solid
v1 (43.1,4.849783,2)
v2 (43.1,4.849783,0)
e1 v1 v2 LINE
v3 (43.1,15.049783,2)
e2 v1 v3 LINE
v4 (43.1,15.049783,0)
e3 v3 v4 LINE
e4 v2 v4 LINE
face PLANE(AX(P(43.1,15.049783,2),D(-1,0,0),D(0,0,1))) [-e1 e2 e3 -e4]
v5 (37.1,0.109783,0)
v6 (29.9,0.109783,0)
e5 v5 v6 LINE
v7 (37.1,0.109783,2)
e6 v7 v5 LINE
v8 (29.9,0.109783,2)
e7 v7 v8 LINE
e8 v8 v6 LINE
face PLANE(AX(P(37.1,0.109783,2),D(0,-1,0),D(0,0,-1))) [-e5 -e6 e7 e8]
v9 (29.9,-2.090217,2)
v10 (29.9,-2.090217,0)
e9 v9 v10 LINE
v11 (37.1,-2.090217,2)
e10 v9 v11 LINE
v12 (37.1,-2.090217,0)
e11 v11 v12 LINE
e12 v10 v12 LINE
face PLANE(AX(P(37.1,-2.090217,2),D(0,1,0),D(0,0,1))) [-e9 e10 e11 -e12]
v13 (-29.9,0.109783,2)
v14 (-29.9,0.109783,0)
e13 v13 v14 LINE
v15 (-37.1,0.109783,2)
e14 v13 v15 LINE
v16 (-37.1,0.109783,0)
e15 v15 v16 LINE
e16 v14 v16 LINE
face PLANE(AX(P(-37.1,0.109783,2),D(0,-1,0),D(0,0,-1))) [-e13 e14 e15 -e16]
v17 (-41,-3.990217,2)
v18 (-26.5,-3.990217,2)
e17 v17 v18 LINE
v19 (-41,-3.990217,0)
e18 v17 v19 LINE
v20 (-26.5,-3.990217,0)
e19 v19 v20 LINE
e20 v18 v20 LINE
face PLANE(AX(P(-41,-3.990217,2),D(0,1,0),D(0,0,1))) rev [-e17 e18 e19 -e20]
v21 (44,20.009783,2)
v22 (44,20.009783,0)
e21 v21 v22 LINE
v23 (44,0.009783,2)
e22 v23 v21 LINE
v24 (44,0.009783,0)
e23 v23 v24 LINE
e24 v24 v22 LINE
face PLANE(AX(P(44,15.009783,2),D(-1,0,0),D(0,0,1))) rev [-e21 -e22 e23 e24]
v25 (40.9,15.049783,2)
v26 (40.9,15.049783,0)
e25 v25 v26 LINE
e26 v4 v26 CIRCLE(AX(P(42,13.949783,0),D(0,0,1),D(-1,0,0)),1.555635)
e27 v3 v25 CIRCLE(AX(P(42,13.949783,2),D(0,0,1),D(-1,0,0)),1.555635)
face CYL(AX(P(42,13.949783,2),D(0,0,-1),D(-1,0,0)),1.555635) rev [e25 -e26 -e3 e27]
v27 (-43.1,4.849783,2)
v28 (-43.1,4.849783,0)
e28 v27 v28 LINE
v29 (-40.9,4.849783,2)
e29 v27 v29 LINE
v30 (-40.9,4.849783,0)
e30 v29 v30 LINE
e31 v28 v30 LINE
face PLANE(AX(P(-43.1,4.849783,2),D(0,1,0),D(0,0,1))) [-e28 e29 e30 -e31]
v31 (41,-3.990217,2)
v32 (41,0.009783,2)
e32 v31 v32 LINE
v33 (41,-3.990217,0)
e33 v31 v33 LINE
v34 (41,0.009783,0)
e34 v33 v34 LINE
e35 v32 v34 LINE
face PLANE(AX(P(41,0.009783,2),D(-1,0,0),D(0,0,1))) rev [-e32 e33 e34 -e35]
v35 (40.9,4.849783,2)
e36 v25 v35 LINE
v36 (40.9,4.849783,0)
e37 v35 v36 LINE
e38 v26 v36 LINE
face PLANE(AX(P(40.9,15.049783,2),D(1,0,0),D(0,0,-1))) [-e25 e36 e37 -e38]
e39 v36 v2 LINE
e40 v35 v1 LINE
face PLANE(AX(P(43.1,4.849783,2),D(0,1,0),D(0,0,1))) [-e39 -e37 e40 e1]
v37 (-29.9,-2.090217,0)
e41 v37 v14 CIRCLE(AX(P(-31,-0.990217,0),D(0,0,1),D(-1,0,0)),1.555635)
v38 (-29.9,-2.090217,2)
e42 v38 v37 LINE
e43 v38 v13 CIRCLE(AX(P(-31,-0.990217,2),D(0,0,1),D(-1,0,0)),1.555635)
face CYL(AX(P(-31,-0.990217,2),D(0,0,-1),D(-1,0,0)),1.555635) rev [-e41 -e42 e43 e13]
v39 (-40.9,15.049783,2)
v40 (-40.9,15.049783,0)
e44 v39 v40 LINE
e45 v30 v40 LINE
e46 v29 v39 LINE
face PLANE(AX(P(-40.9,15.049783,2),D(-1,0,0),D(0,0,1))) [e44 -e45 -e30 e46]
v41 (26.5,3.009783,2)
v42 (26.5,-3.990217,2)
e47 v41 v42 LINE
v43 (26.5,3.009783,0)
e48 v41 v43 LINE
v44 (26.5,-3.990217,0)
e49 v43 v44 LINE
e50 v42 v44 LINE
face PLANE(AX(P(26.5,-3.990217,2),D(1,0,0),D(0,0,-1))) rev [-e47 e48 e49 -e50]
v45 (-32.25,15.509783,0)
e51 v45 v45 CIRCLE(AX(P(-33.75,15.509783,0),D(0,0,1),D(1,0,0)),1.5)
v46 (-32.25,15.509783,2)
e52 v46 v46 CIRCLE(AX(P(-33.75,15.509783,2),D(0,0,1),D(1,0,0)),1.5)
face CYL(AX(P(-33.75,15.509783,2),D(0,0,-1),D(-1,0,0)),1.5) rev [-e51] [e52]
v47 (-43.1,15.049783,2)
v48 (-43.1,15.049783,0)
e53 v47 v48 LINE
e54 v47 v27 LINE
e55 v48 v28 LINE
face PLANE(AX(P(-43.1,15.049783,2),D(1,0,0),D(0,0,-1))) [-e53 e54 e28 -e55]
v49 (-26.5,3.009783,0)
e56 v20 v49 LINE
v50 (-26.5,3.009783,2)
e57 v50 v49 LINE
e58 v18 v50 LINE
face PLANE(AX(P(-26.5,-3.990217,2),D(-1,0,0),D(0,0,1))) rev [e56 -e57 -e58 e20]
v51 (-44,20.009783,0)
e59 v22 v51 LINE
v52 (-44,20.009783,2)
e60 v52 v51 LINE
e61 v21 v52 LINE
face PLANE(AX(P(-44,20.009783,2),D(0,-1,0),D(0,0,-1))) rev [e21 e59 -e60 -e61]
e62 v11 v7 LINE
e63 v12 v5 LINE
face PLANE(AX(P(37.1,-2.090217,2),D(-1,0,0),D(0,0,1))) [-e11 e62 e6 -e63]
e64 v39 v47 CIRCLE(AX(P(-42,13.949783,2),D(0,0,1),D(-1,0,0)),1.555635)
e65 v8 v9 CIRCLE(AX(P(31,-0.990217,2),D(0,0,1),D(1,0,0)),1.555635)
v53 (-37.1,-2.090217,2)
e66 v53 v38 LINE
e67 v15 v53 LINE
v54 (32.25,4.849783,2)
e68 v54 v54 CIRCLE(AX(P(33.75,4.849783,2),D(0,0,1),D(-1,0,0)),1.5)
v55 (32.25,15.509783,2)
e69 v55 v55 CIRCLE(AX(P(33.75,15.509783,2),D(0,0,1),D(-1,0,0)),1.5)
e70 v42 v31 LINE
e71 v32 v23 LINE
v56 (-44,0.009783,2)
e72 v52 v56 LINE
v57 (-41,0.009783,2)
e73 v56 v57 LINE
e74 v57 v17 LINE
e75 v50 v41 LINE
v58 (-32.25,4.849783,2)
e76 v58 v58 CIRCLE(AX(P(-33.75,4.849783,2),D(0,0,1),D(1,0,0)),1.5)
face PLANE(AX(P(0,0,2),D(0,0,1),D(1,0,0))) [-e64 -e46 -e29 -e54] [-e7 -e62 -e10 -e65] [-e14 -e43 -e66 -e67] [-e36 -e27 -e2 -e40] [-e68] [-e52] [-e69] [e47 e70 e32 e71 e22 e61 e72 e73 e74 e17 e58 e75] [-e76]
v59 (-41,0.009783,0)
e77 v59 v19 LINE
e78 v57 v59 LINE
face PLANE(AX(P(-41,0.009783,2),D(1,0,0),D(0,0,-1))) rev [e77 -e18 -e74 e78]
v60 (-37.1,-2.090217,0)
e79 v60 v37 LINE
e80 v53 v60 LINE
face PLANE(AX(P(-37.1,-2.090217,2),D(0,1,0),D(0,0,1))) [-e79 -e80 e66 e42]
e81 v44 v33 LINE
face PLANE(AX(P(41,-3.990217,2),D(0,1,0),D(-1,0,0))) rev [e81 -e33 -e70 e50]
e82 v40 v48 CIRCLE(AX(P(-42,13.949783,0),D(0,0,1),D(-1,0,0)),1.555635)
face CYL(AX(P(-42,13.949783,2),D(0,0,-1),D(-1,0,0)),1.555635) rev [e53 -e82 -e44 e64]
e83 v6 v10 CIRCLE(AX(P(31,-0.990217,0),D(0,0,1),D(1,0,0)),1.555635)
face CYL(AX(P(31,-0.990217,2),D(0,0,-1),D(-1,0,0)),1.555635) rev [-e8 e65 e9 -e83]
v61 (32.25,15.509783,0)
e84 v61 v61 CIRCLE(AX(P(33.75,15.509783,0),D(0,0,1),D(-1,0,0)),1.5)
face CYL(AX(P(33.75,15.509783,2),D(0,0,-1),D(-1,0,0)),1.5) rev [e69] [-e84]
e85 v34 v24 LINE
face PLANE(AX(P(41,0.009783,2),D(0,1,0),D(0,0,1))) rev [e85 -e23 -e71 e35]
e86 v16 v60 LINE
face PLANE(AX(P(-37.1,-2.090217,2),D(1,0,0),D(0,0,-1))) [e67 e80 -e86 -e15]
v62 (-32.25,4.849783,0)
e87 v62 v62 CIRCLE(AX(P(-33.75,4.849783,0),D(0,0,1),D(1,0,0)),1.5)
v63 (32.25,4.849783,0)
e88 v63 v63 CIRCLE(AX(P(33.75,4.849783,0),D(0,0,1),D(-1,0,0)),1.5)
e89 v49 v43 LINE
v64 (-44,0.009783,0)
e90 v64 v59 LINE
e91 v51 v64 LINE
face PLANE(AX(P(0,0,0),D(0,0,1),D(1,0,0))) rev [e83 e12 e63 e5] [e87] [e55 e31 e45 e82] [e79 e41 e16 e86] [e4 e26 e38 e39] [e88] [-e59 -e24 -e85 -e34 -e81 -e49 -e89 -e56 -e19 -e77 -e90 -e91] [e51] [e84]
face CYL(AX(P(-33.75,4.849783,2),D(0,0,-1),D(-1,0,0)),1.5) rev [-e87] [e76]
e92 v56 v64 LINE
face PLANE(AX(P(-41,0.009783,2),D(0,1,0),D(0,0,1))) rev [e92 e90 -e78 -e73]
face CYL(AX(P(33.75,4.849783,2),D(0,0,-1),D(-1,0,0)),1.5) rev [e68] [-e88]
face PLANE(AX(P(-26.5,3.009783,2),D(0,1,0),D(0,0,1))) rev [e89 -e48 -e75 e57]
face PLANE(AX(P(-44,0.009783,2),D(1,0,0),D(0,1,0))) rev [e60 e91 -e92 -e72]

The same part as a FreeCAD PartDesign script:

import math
import FreeCAD as App
import Part
import Sketcher

V = App.Vector
Q = App.Units.Quantity


def add_polygon(sketch, points):
    """Adds a closed chain of lines whose ends are joined by coincident constraints."""
    first, n = sketch.GeometryCount, len(points)
    for a, b in zip(points, points[1:] + points[:1]):
        sketch.addGeometry(Part.LineSegment(App.Vector(*a, 0), App.Vector(*b, 0)), False)
    for i in range(n):
        sketch.addConstraint(Sketcher.Constraint("Coincident", first + i, 2, first + (i + 1) % n, 1))

doc = App.newDocument("Part")
body = doc.addObject("PartDesign::Body", "Body")

# Sketch on XY plane
sketch1 = body.newObject("Sketcher::SketchObject", "Sketch")
sketch1.AttachmentSupport = (doc.getObject("XY_Plane"), [""])
sketch1.MapMode = "FlatFace"
add_polygon(sketch1, [(-44, 20), (-44, 0), (-41, 0), (-41, -4), (-26.5, -4), (-26.5, 3), (26.5, 3), (26.5, -4), (41, -4), (41, 0), (44, 0), (44, 20)])  # lines 0-11
sketch1.addGeometry(Part.LineSegment(V(-37.1, -2.1, 0), V(-37.1, 0.1, 0)), False)  # 12
sketch1.addGeometry(Part.LineSegment(V(-37.1, 0.1, 0), V(-29.9, 0.1, 0)), False)  # 13
sketch1.addGeometry(Part.ArcOfCircle(Part.Circle(V(-31, -1, 0), V(0, 0, 1), 1.6), math.radians(-45), math.radians(45)), False)  # 14
sketch1.addGeometry(Part.LineSegment(V(-29.9, -2.1, 0), V(-37.1, -2.1, 0)), False)  # 15
sketch1.addGeometry(Part.Circle(V(-33.8, 4.8, 0), V(0, 0, 1), 1.5), False)  # 16
sketch1.addGeometry(Part.LineSegment(V(37.1, 0.1, 0), V(37.1, -2.1, 0)), False)  # 17
sketch1.addGeometry(Part.LineSegment(V(37.1, -2.1, 0), V(29.9, -2.1, 0)), False)  # 18
sketch1.addGeometry(Part.ArcOfCircle(Part.Circle(V(31, -1, 0), V(0, 0, 1), 1.6), math.radians(135), math.radians(225)), False)  # 19
sketch1.addGeometry(Part.LineSegment(V(29.9, 0.1, 0), V(37.1, 0.1, 0)), False)  # 20
sketch1.addGeometry(Part.Circle(V(33.8, 4.8, 0), V(0, 0, 1), 1.5), False)  # 21
sketch1.addGeometry(Part.LineSegment(V(-43.1, 4.8, 0), V(-43.1, 15, 0)), False)  # 22
sketch1.addGeometry(Part.ArcOfCircle(Part.Circle(V(-42, 13.9, 0), V(0, 0, 1), 1.6), math.radians(45), math.radians(135)), False)  # 23
sketch1.addGeometry(Part.LineSegment(V(-40.9, 15, 0), V(-40.9, 4.8, 0)), False)  # 24
sketch1.addGeometry(Part.LineSegment(V(-40.9, 4.8, 0), V(-43.1, 4.8, 0)), False)  # 25
sketch1.addGeometry(Part.Circle(V(-33.8, 15.5, 0), V(0, 0, 1), 1.5), False)  # 26
sketch1.addGeometry(Part.LineSegment(V(40.9, 4.8, 0), V(40.9, 15, 0)), False)  # 27
sketch1.addGeometry(Part.ArcOfCircle(Part.Circle(V(42, 13.9, 0), V(0, 0, 1), 1.6), math.radians(45), math.radians(135)), False)  # 28
sketch1.addGeometry(Part.LineSegment(V(43.1, 15, 0), V(43.1, 4.8, 0)), False)  # 29
sketch1.addGeometry(Part.LineSegment(V(43.1, 4.8, 0), V(40.9, 4.8, 0)), False)  # 30
sketch1.addGeometry(Part.Circle(V(33.8, 15.5, 0), V(0, 0, 1), 1.5), False)  # 31
sketch1.addConstraint([
    Sketcher.Constraint("Coincident", 12, 2, 13, 1),
    Sketcher.Constraint("Coincident", 13, 2, 14, 2),
    Sketcher.Constraint("Coincident", 14, 1, 15, 1),
    Sketcher.Constraint("Coincident", 15, 2, 12, 1),
    Sketcher.Constraint("Coincident", 17, 2, 18, 1),
    Sketcher.Constraint("Coincident", 18, 2, 19, 2),
    Sketcher.Constraint("Coincident", 19, 1, 20, 1),
    Sketcher.Constraint("Coincident", 20, 2, 17, 1),
    Sketcher.Constraint("Coincident", 22, 2, 23, 2),
    Sketcher.Constraint("Coincident", 23, 1, 24, 1),
    Sketcher.Constraint("Coincident", 24, 2, 25, 1),
    Sketcher.Constraint("Coincident", 25, 2, 22, 1),
    Sketcher.Constraint("Coincident", 27, 2, 28, 2),
    Sketcher.Constraint("Coincident", 28, 1, 29, 1),
    Sketcher.Constraint("Coincident", 29, 2, 30, 1),
    Sketcher.Constraint("Coincident", 30, 2, 27, 1),
    Sketcher.Constraint("Vertical", 0),
    Sketcher.Constraint("Horizontal", 1),
    Sketcher.Constraint("Vertical", 2),
    Sketcher.Constraint("Horizontal", 3),
    Sketcher.Constraint("Vertical", 4),
    Sketcher.Constraint("Horizontal", 5),
    Sketcher.Constraint("Vertical", 6),
    Sketcher.Constraint("Horizontal", 7),
    Sketcher.Constraint("Vertical", 8),
    Sketcher.Constraint("Horizontal", 9),
    Sketcher.Constraint("Vertical", 10),
    Sketcher.Constraint("Horizontal", 11),
    Sketcher.Constraint("Vertical", 12),
    Sketcher.Constraint("Horizontal", 13),
    Sketcher.Constraint("Horizontal", 15),
    Sketcher.Constraint("Vertical", 17),
    Sketcher.Constraint("Horizontal", 18),
    Sketcher.Constraint("Horizontal", 20),
    Sketcher.Constraint("Vertical", 22),
    Sketcher.Constraint("Vertical", 24),
    Sketcher.Constraint("Horizontal", 25),
    Sketcher.Constraint("Vertical", 27),
    Sketcher.Constraint("Vertical", 29),
    Sketcher.Constraint("Horizontal", 30),
    Sketcher.Constraint("Equal", 14, 19),
    Sketcher.Constraint("Equal", 16, 21),
    Sketcher.Constraint("Equal", 19, 23),
    Sketcher.Constraint("Equal", 21, 26),
    Sketcher.Constraint("Equal", 23, 28),
    Sketcher.Constraint("Equal", 26, 31),
    Sketcher.Constraint("Symmetric", 14, 3, 19, 3, -2),
    Sketcher.Constraint("Symmetric", 16, 3, 21, 3, -2),
    Sketcher.Constraint("Symmetric", 23, 3, 28, 3, -2),
    Sketcher.Constraint("Symmetric", 26, 3, 31, 3, -2),
    Sketcher.Constraint("Symmetric", 3, 2, 6, 2, -2),
    Sketcher.Constraint("Symmetric", 1, 2, 8, 2, -2),
    Sketcher.Constraint("Symmetric", 15, 2, 17, 2, -2),
    Sketcher.Constraint("Symmetric", 25, 2, 29, 2, -2),
    Sketcher.Constraint("Horizontal", 13, 2, 19, 1),
    Sketcher.Constraint("Horizontal", 22, 2, 23, 1),
    Sketcher.Constraint("Horizontal", 21, 3, 24, 2),
    Sketcher.Constraint("Horizontal", 23, 1, 27, 2),
    Sketcher.Constraint("Vertical", 16, 3, 26, 3),
    Sketcher.Constraint("Vertical", 13, 2, 14, 1),
    Sketcher.Constraint("Equal", 1, 9),
    Sketcher.Constraint("Equal", 30, 12),
    Sketcher.Constraint("Diameter", 16, Q("3 mm")),
    Sketcher.Constraint("DistanceX", 1, 1, 1, 2, Q("3 mm")),
    Sketcher.Constraint("DistanceX", 5, 1, 5, 2, Q("53 mm")),
    Sketcher.Constraint("DistanceX", 11, 2, 11, 1, Q("88 mm")),
    Sketcher.Constraint("DistanceY", 0, 2, 0, 1, Q("20 mm")),
    Sketcher.Constraint("DistanceY", 2, 2, 2, 1, Q("4 mm")),
    Sketcher.Constraint("DistanceY", 4, 1, 4, 2, Q("7 mm")),
    Sketcher.Constraint("DistanceX", 13, 1, 13, 2, Q("7.2 mm")),
    Sketcher.Constraint("DistanceX", 25, 2, 25, 1, Q("2.2 mm")),
    Sketcher.Constraint("DistanceY", 22, 1, 22, 2, Q("10.2 mm")),
    Sketcher.Constraint("DistanceX", 14, 3, -1, 1, Q("31 mm")),
    Sketcher.Constraint("DistanceX", 23, 3, -1, 1, Q("42 mm")),
    Sketcher.Constraint("DistanceY", 14, 3, 0, 2, Q("1 mm")),
    Sketcher.Constraint("DistanceX", 25, 2, 12, 2, Q("6 mm")),
    Sketcher.Constraint("DistanceX", 16, 3, 21, 3, Q("67.5 mm")),
    Sketcher.Constraint("DistanceY", 14, 3, 26, 3, Q("16.5 mm")),
    Sketcher.Constraint("DistanceY", 14, 3, 16, 3, Q("5.84 mm")),
    Sketcher.Constraint("DistanceY", 14, 3, -1, 1, Q("0.990217 mm")),
])
pad1 = body.newObject("PartDesign::Pad", "Pad")
pad1.Profile = sketch1
pad1.Length = 2

doc.recompute()
